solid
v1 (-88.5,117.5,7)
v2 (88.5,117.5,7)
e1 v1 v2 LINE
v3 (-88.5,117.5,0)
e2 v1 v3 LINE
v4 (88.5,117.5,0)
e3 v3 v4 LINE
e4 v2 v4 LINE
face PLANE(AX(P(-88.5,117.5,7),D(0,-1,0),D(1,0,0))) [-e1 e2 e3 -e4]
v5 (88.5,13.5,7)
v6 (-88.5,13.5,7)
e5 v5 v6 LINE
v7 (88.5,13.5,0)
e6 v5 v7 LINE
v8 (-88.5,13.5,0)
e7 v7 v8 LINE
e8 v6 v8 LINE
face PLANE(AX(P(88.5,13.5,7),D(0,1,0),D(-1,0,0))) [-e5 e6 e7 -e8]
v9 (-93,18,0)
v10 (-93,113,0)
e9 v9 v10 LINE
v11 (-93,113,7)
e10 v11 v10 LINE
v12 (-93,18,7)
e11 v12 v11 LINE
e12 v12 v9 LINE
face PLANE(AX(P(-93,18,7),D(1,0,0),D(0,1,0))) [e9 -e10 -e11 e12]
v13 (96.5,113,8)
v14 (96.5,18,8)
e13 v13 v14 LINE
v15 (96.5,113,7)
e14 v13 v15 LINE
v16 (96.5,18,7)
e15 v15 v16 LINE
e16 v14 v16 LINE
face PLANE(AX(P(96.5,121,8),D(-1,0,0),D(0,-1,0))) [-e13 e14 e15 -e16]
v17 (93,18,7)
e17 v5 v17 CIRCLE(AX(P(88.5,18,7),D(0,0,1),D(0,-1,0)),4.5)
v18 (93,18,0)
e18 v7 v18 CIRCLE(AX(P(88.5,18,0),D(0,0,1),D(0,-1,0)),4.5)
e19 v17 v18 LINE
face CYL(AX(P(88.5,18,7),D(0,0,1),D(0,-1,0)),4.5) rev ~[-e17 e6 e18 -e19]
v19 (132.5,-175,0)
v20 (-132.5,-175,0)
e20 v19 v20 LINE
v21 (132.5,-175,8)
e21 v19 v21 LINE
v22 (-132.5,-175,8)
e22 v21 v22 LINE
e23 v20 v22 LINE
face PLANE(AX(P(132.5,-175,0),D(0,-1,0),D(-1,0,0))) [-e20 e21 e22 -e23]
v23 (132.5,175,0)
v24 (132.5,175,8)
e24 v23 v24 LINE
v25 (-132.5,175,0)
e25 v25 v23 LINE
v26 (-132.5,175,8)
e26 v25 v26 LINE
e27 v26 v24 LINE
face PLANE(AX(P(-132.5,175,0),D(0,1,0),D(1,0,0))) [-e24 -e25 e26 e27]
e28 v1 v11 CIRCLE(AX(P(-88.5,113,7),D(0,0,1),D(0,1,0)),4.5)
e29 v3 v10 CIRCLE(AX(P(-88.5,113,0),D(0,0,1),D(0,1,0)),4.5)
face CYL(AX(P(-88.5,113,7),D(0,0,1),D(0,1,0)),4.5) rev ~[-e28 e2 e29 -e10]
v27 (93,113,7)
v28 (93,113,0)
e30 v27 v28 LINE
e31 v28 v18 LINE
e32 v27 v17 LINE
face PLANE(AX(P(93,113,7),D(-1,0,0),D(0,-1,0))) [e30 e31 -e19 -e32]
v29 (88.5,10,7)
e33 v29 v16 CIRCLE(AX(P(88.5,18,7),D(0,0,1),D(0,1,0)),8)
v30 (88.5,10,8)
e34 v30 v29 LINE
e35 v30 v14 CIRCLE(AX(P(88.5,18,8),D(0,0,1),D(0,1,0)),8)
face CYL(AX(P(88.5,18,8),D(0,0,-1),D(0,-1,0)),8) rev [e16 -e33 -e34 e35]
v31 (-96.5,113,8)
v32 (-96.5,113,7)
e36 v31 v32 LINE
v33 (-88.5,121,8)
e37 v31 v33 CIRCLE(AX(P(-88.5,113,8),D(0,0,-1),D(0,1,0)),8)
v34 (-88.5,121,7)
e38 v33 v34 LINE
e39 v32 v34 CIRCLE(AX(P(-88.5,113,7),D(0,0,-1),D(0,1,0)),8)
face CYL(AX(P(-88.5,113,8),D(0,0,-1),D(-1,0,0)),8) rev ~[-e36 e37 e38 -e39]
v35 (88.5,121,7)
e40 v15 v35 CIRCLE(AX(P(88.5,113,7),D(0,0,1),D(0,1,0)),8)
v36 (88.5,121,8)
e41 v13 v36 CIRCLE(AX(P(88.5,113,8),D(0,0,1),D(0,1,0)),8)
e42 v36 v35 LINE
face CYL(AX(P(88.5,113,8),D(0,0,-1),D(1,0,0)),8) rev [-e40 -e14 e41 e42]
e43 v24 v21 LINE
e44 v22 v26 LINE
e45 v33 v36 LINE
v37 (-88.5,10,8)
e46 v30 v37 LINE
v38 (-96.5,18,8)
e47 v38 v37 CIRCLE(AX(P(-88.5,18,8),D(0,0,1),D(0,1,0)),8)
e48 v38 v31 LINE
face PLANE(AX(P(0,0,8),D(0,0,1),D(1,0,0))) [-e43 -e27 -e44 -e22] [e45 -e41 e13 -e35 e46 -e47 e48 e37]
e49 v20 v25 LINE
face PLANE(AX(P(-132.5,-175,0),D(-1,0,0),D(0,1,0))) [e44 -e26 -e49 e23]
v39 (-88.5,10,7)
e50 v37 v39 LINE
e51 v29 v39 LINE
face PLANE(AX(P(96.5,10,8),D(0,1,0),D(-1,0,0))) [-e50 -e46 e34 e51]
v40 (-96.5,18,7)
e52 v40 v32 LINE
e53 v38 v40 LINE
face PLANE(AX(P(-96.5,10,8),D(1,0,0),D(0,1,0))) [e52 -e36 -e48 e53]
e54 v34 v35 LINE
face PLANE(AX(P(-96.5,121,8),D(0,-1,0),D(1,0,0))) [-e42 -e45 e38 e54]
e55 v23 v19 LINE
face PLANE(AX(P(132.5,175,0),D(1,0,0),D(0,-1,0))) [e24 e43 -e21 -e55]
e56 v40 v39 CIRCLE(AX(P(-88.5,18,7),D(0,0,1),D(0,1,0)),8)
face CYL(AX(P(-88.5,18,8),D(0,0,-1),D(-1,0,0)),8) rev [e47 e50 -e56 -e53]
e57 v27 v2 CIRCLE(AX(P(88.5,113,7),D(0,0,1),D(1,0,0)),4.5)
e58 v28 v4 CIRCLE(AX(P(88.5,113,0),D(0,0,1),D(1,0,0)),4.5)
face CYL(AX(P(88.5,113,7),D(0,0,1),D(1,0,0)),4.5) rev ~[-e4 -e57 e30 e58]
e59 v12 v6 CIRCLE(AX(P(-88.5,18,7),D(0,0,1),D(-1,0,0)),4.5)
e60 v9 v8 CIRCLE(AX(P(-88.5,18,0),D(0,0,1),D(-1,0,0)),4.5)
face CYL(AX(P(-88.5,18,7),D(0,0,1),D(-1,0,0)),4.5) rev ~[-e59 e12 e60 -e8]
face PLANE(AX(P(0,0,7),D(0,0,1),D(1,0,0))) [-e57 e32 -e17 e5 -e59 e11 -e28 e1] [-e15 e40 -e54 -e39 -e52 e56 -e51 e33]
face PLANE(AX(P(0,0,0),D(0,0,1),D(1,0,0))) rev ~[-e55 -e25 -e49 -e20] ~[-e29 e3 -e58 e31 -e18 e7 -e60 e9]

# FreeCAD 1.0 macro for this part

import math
import FreeCAD as App
import Part
import Sketcher
from FreeCAD import Vector


def edges_at(feature, points):
    """Names of the edges that pass closest to the given points."""
    edges = feature.Shape.Edges
    near = lambda p: min(range(len(edges)), key=lambda i: edges[i].distToShape(Part.Vertex(*p))[0])
    return sorted({f"Edge{near(p) + 1}" for p in points})

doc = App.newDocument("Part")
params = doc.addObject("Spreadsheet::Sheet", "Params")
for row, (alias, value) in enumerate([
    ("sketch1_width", "265 mm"),
    ("sketch1_height", "350 mm"),
    ("pad1_length", "8 mm"),
    ("sketch2_width", "193 mm"),
    ("sketch2_height", "111 mm"),
    ("pocket1_length", "1 mm"),
    ("fillet_radius", "8 mm"),
    ("sketch3_radius", "4.5 mm"),
    ("sketch3_width", "177 mm"),
    ("sketch3_height", "95 mm"),
], start=1):
    params.set(f"A{row}", alias)
    params.set(f"B{row}", "=" + value)
    params.setAlias(f"B{row}", alias)

body = doc.addObject("PartDesign::Body", "Body")

# Sketch on XY plane
sketch1 = doc.addObject("Sketcher::SketchObject", "Sketch")
body.addObject(sketch1)
sketch1.AttachmentSupport = (doc.XY_Plane, [""])
sketch1.MapMode = "FlatFace"
sketch1.addGeometry([
    Part.LineSegment(Vector(132, 175, 0), Vector(-132, 175, 0)),
    Part.LineSegment(Vector(-132, 175, 0), Vector(-132, -175, 0)),
    Part.LineSegment(Vector(-132, -175, 0), Vector(132, -175, 0)),
    Part.LineSegment(Vector(132, -175, 0), Vector(132, 175, 0)),
], False)
sketch1.addConstraint([
    Sketcher.Constraint("Coincident", 0, 2, 1, 1),
    Sketcher.Constraint("Coincident", 1, 2, 2, 1),
    Sketcher.Constraint("Coincident", 2, 2, 3, 1),
    Sketcher.Constraint("Coincident", 3, 2, 0, 1),
    Sketcher.Constraint("Horizontal", 0),
    Sketcher.Constraint("Vertical", 1),
    Sketcher.Constraint("Horizontal", 2),
    Sketcher.Constraint("Vertical", 3),
    Sketcher.Constraint("Symmetric", 0, 2, 2, 2, -1, 1),
    Sketcher.Constraint("DistanceX", 0, 2, 0, 1, 265.0),
    Sketcher.Constraint("DistanceY", 1, 2, 1, 1, 350.0),
])
sketch1.setExpression("Constraints[9]", "Params.sketch1_width")
sketch1.setExpression("Constraints[10]", "Params.sketch1_height")
pad1 = doc.addObject("PartDesign::Pad", "Pad")
body.addObject(pad1)
pad1.Profile = sketch1
pad1.setExpression("Length", "Params.pad1_length")

# Sketch on XY plane
sketch2 = doc.addObject("Sketcher::SketchObject", "Sketch001")
body.addObject(sketch2)
sketch2.AttachmentSupport = (doc.XY_Plane, [""])
sketch2.MapMode = "FlatFace"
sketch2.AttachmentOffset = App.Placement(Vector(0, 0, 8), App.Rotation())
sketch2.addGeometry([
    Part.LineSegment(Vector(96, 121, 0), Vector(-96, 121, 0)),
    Part.LineSegment(Vector(-96, 121, 0), Vector(-96, 10, 0)),
    Part.LineSegment(Vector(-96, 10, 0), Vector(96, 10, 0)),
    Part.LineSegment(Vector(96, 10, 0), Vector(96, 121, 0)),
], False)
sketch2.addConstraint([
    Sketcher.Constraint("Coincident", 0, 2, 1, 1),
    Sketcher.Constraint("Coincident", 1, 2, 2, 1),
    Sketcher.Constraint("Coincident", 2, 2, 3, 1),
    Sketcher.Constraint("Coincident", 3, 2, 0, 1),
    Sketcher.Constraint("Horizontal", 0),
    Sketcher.Constraint("Vertical", 1),
    Sketcher.Constraint("Horizontal", 2),
    Sketcher.Constraint("Vertical", 3),
    Sketcher.Constraint("DistanceX", 0, 2, 0, 1, 193.0),
    Sketcher.Constraint("DistanceY", 1, 2, 1, 1, 111.0),
    Sketcher.Constraint("DistanceY", -1, 1, 1, 2, 10.0),
    Sketcher.Constraint("DistanceX", 0, 2, -1, 1, 96.5),
])
sketch2.setExpression("Constraints[8]", "Params.sketch2_width")
sketch2.setExpression("Constraints[9]", "Params.sketch2_height")
pocket1 = doc.addObject("PartDesign::Pocket", "Pocket")
body.addObject(pocket1)
pocket1.Profile = sketch2
pocket1.setExpression("Length", "Params.pocket1_length")
doc.recompute()

fillet = doc.addObject("PartDesign::Fillet", "Fillet")
body.addObject(fillet)
fillet.Base = (pocket1, edges_at(pocket1, [
    (-96.5, 121, 7.5),
    (96.5, 121, 7.5),
    (96.5, 10, 7.5),
    (-96.5, 10, 7.5),
]))
fillet.setExpression("Radius", "Params.fillet_radius")

# Sketch on XY plane
sketch3 = doc.addObject("Sketcher::SketchObject", "Sketch002")
body.addObject(sketch3)
sketch3.AttachmentSupport = (doc.XY_Plane, [""])
sketch3.MapMode = "FlatFace"
sketch3.AttachmentOffset = App.Placement(Vector(0, 0, 7), App.Rotation())
sketch3.addGeometry([
    Part.LineSegment(Vector(88.5, 117.5, 0), Vector(-88.5, 117.5, 0)),  # 0
    Part.ArcOfCircle(Part.Circle(Vector(-88.5, 113, 0), Vector(0, 0, 1), 4.5), math.radians(90), math.radians(180)),  # 1
    Part.LineSegment(Vector(-93, 113, 0), Vector(-93, 18, 0)),  # 2
    Part.ArcOfCircle(Part.Circle(Vector(-88.5, 18, 0), Vector(0, 0, 1), 4.5), math.radians(180), math.radians(270)),  # 3
    Part.LineSegment(Vector(-88.5, 13.5, 0), Vector(88.5, 13.5, 0)),  # 4
    Part.ArcOfCircle(Part.Circle(Vector(88.5, 18, 0), Vector(0, 0, 1), 4.5), math.radians(-90), math.radians(0)),  # 5
    Part.LineSegment(Vector(93, 18, 0), Vector(93, 113, 0)),  # 6
    Part.ArcOfCircle(Part.Circle(Vector(88.5, 113, 0), Vector(0, 0, 1), 4.5), math.radians(0), math.radians(90)),  # 7
], False)
sketch3.addConstraint([
    Sketcher.Constraint("Tangent", 0, 2, 1, 1),
    Sketcher.Constraint("Tangent", 1, 2, 2, 1),
    Sketcher.Constraint("Tangent", 2, 2, 3, 1),
    Sketcher.Constraint("Tangent", 3, 2, 4, 1),
    Sketcher.Constraint("Tangent", 4, 2, 5, 1),
    Sketcher.Constraint("Tangent", 5, 2, 6, 1),
    Sketcher.Constraint("Tangent", 6, 2, 7, 1),
    Sketcher.Constraint("Tangent", 7, 2, 0, 1),
    Sketcher.Constraint("Horizontal", 0),
    Sketcher.Constraint("Vertical", 2),
    Sketcher.Constraint("Horizontal", 4),
    Sketcher.Constraint("Vertical", 6),
    Sketcher.Constraint("Equal", 1, 3),
    Sketcher.Constraint("Equal", 3, 5),
    Sketcher.Constraint("Equal", 5, 7),
    Sketcher.Constraint("Radius", 1, 4.5),
    Sketcher.Constraint("DistanceX", 0, 2, 0, 1, 177.0),
    Sketcher.Constraint("DistanceY", 2, 2, 2, 1, 95.0),
    Sketcher.Constraint("DistanceY", -1, 1, 1, 3, 113.0),
    Sketcher.Constraint("DistanceX", 1, 2, -1, 1, 93.0),
])
sketch3.setExpression("Constraints[15]", "Params.sketch3_radius")
sketch3.setExpression("Constraints[16]", "Params.sketch3_width")
sketch3.setExpression("Constraints[17]", "Params.sketch3_height")
pocket2 = doc.addObject("PartDesign::Pocket", "Pocket001")
body.addObject(pocket2)
pocket2.Profile = sketch3
pocket2.Type = "ThroughAll"

doc.recompute()
